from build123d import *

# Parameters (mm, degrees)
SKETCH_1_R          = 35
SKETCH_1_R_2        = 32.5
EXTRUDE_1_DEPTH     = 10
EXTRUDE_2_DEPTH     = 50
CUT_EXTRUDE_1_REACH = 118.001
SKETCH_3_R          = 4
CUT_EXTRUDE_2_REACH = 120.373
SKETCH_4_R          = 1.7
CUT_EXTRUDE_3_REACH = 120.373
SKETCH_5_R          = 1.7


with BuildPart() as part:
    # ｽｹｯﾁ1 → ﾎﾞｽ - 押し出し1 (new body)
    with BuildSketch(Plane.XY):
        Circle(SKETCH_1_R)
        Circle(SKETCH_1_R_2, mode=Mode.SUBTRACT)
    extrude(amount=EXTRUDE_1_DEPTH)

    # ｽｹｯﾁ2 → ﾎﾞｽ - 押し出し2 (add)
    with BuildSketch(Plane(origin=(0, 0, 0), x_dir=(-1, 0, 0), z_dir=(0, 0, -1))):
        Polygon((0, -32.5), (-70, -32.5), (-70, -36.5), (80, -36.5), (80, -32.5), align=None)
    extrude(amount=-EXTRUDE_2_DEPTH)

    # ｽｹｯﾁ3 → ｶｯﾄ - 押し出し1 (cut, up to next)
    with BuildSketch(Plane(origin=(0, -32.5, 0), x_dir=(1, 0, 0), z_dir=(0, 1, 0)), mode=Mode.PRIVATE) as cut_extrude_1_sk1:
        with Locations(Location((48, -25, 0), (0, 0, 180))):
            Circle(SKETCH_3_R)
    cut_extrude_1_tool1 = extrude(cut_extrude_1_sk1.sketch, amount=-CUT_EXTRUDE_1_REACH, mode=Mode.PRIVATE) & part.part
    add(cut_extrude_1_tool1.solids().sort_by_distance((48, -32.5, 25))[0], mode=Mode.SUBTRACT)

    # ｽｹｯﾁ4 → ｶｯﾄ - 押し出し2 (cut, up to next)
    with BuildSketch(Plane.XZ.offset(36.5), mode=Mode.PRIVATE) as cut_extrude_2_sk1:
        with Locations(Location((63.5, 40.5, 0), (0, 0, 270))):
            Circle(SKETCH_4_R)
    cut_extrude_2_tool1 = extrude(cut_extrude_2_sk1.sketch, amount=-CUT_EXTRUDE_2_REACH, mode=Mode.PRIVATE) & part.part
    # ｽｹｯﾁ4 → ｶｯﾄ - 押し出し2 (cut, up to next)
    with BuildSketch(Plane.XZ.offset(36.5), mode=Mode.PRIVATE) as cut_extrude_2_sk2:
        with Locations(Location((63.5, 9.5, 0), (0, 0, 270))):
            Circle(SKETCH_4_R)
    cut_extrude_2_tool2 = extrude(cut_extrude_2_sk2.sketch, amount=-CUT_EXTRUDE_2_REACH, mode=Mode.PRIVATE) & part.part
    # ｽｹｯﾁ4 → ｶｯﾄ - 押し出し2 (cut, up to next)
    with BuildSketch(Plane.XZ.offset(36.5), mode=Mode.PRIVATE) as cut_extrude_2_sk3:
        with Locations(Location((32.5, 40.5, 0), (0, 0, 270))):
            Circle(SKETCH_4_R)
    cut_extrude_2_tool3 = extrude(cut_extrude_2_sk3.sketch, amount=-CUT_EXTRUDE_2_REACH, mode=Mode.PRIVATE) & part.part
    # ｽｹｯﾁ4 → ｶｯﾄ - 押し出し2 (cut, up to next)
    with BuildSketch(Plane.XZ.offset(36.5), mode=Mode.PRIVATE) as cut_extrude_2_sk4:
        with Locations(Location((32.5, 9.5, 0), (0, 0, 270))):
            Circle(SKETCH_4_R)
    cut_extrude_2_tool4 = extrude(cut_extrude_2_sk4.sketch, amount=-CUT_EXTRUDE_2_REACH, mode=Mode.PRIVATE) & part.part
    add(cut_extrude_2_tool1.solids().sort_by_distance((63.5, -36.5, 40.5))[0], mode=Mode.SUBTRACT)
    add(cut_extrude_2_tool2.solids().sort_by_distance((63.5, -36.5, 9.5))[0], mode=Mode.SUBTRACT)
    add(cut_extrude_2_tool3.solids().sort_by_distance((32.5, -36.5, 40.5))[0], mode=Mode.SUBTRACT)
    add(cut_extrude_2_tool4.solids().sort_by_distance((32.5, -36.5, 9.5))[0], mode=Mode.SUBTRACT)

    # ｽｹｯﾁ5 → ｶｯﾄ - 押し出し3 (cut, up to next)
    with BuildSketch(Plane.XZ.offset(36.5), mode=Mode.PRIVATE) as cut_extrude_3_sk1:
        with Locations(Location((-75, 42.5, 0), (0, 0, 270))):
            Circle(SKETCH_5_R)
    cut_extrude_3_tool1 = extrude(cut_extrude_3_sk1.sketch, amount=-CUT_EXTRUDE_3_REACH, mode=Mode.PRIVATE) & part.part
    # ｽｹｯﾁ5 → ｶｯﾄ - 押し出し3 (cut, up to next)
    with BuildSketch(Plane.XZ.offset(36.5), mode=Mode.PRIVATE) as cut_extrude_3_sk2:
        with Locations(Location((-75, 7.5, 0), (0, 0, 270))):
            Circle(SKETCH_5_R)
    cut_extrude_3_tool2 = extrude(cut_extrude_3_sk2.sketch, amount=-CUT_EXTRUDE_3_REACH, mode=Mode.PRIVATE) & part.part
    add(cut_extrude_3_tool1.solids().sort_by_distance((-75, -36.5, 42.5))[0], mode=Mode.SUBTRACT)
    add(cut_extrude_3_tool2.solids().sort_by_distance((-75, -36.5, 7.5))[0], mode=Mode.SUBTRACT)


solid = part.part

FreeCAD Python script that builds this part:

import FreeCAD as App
import Part
import Sketcher

doc = App.newDocument("Part")
body = doc.addObject("PartDesign::Body", "Body")

# Sketch on XY plane
sketch1 = body.newObject("Sketcher::SketchObject", "Sketch")
sketch1.AttachmentSupport = (doc.getObject("XY_Plane"), [""])
sketch1.MapMode = "FlatFace"
sketch1.addGeometry([
    Part.Circle(App.Vector(0, 0, 0), App.Vector(0, 0, 1), 35),
    Part.Circle(App.Vector(0, 0, 0), App.Vector(0, 0, 1), 32),
], False)
sketch1.addConstraint([
    Sketcher.Constraint("Coincident", 0, 3, -1, 1),
    Sketcher.Constraint("Coincident", 1, 3, -1, 1),
    Sketcher.Constraint("Diameter", 0, 70.0),
    Sketcher.Constraint("Diameter", 1, 65.0),
])
pad1 = body.newObject("PartDesign::Pad", "Pad")
pad1.Profile = sketch1
pad1.Length = 10

# Sketch on XY plane
sketch2 = body.newObject("Sketcher::SketchObject", "Sketch001")
sketch2.AttachmentSupport = (doc.getObject("XY_Plane"), [""])
sketch2.MapMode = "FlatFace"
sketch2.addGeometry([
    Part.LineSegment(App.Vector(70, -32.5, 0), App.Vector(70, -36.5, 0)),
    Part.LineSegment(App.Vector(70, -36.5, 0), App.Vector(-80, -36.5, 0)),
    Part.LineSegment(App.Vector(-80, -36.5, 0), App.Vector(-80, -32.5, 0)),
    Part.LineSegment(App.Vector(-80, -32.5, 0), App.Vector(70, -32.5, 0)),
], False)
sketch2.addConstraint([
    Sketcher.Constraint("Coincident", 0, 2, 1, 1),
    Sketcher.Constraint("Coincident", 1, 2, 2, 1),
    Sketcher.Constraint("Coincident", 2, 2, 3, 1),
    Sketcher.Constraint("Coincident", 3, 2, 0, 1),
    Sketcher.Constraint("Vertical", 0),
    Sketcher.Constraint("Horizontal", 1),
    Sketcher.Constraint("Vertical", 2),
    Sketcher.Constraint("Horizontal", 3),
    Sketcher.Constraint("DistanceX", 1, 2, 1, 1, 150.0),
    Sketcher.Constraint("DistanceY", 0, 2, 0, 1, 4.0),
    Sketcher.Constraint("DistanceX", -1, 1, 0, 2, 70.0),
    Sketcher.Constraint("DistanceY", 0, 2, -1, 1, 36.5),
])
pad2 = body.newObject("PartDesign::Pad", "Pad001")
pad2.Profile = sketch2
pad2.Length = 50

# Sketch on XZ plane
sketch3 = body.newObject("Sketcher::SketchObject", "Sketch002")
sketch3.AttachmentSupport = (doc.getObject("XZ_Plane"), [""])
sketch3.MapMode = "FlatFace"
sketch3.AttachmentOffset = App.Placement(App.Vector(0, 0, 32.5), App.Rotation())
sketch3.addGeometry(Part.Circle(App.Vector(48, 25, 0), App.Vector(0, 0, 1), 4), False)
sketch3.addConstraint([
    Sketcher.Constraint("Diameter", 0, 8.0),
    Sketcher.Constraint("DistanceX", -1, 1, 0, 3, 48.0),
    Sketcher.Constraint("DistanceY", -1, 1, 0, 3, 25.0),
])
pocket1 = body.newObject("PartDesign::Pocket", "Pocket")
pocket1.Profile = sketch3
pocket1.Type = "UpToFirst"
pocket1.Reversed = True

# Sketch on XZ plane
sketch4 = body.newObject("Sketcher::SketchObject", "Sketch003")
sketch4.AttachmentSupport = (doc.getObject("XZ_Plane"), [""])
sketch4.MapMode = "FlatFace"
sketch4.AttachmentOffset = App.Placement(App.Vector(0, 0, 36.5), App.Rotation())
sketch4.addGeometry(Part.Circle(App.Vector(63.5, 40.5, 0), App.Vector(0, 0, 1), 1.7), False)
sketch4.addConstraint([
    Sketcher.Constraint("Diameter", 0, 3.4),
    Sketcher.Constraint("DistanceX", -1, 1, 0, 3, 63.5),
    Sketcher.Constraint("DistanceY", -1, 1, 0, 3, 40.5),
])
pocket2 = body.newObject("PartDesign::Pocket", "Pocket001")
pocket2.Profile = sketch4
pocket2.Type = "UpToFirst"

# Sketch on XZ plane
sketch5 = body.newObject("Sketcher::SketchObject", "Sketch004")
sketch5.AttachmentSupport = (doc.getObject("XZ_Plane"), [""])
sketch5.MapMode = "FlatFace"
sketch5.AttachmentOffset = App.Placement(App.Vector(0, 0, 36.5), App.Rotation())
sketch5.addGeometry(Part.Circle(App.Vector(63.5, 9.5, 0), App.Vector(0, 0, 1), 1.7), False)
sketch5.addConstraint([
    Sketcher.Constraint("Diameter", 0, 3.4),
    Sketcher.Constraint("DistanceX", -1, 1, 0, 3, 63.5),
    Sketcher.Constraint("DistanceY", -1, 1, 0, 3, 9.5),
])
pocket3 = body.newObject("PartDesign::Pocket", "Pocket002")
pocket3.Profile = sketch5
pocket3.Type = "UpToFirst"

# Sketch on XZ plane
sketch6 = body.newObject("Sketcher::SketchObject", "Sketch005")
sketch6.AttachmentSupport = (doc.getObject("XZ_Plane"), [""])
sketch6.MapMode = "FlatFace"
sketch6.AttachmentOffset = App.Placement(App.Vector(0, 0, 36.5), App.Rotation())
sketch6.addGeometry(Part.Circle(App.Vector(32.5, 40.5, 0), App.Vector(0, 0, 1), 1.7), False)
sketch6.addConstraint([
    Sketcher.Constraint("Diameter", 0, 3.4),
    Sketcher.Constraint("DistanceX", -1, 1, 0, 3, 32.5),
    Sketcher.Constraint("DistanceY", -1, 1, 0, 3, 40.5),
])
pocket4 = body.newObject("PartDesign::Pocket", "Pocket003")
pocket4.Profile = sketch6
pocket4.Type = "UpToFirst"

# Sketch on XZ plane
sketch7 = body.newObject("Sketcher::SketchObject", "Sketch006")
sketch7.AttachmentSupport = (doc.getObject("XZ_Plane"), [""])
sketch7.MapMode = "FlatFace"
sketch7.AttachmentOffset = App.Placement(App.Vector(0, 0, 36.5), App.Rotation())
sketch7.addGeometry(Part.Circle(App.Vector(32.5, 9.5, 0), App.Vector(0, 0, 1), 1.7), False)
sketch7.addConstraint([
    Sketcher.Constraint("Diameter", 0, 3.4),
    Sketcher.Constraint("DistanceX", -1, 1, 0, 3, 32.5),
    Sketcher.Constraint("DistanceY", -1, 1, 0, 3, 9.5),
])
pocket5 = body.newObject("PartDesign::Pocket", "Pocket004")
pocket5.Profile = sketch7
pocket5.Type = "UpToFirst"

# Sketch on XZ plane
sketch8 = body.newObject("Sketcher::SketchObject", "Sketch007")
sketch8.AttachmentSupport = (doc.getObject("XZ_Plane"), [""])
sketch8.MapMode = "FlatFace"
sketch8.AttachmentOffset = App.Placement(App.Vector(0, 0, 36.5), App.Rotation())
sketch8.addGeometry(Part.Circle(App.Vector(-75, 42.5, 0), App.Vector(0, 0, 1), 1.7), False)
sketch8.addConstraint([
    Sketcher.Constraint("Diameter", 0, 3.4),
    Sketcher.Constraint("DistanceX", 0, 3, -1, 1, 75.0),
    Sketcher.Constraint("DistanceY", -1, 1, 0, 3, 42.5),
])
pocket6 = body.newObject("PartDesign::Pocket", "Pocket005")
pocket6.Profile = sketch8
pocket6.Type = "UpToFirst"

# Sketch on XZ plane
sketch9 = body.newObject("Sketcher::SketchObject", "Sketch008")
sketch9.AttachmentSupport = (doc.getObject("XZ_Plane"), [""])
sketch9.MapMode = "FlatFace"
sketch9.AttachmentOffset = App.Placement(App.Vector(0, 0, 36.5), App.Rotation())
sketch9.addGeometry(Part.Circle(App.Vector(-75, 7.5, 0), App.Vector(0, 0, 1), 1.7), False)
sketch9.addConstraint([
    Sketcher.Constraint("Diameter", 0, 3.4),
    Sketcher.Constraint("DistanceX", 0, 3, -1, 1, 75.0),
    Sketcher.Constraint("DistanceY", -1, 1, 0, 3, 7.5),
])
pocket7 = body.newObject("PartDesign::Pocket", "Pocket006")
pocket7.Profile = sketch9
pocket7.Type = "UpToFirst"

doc.recompute()
